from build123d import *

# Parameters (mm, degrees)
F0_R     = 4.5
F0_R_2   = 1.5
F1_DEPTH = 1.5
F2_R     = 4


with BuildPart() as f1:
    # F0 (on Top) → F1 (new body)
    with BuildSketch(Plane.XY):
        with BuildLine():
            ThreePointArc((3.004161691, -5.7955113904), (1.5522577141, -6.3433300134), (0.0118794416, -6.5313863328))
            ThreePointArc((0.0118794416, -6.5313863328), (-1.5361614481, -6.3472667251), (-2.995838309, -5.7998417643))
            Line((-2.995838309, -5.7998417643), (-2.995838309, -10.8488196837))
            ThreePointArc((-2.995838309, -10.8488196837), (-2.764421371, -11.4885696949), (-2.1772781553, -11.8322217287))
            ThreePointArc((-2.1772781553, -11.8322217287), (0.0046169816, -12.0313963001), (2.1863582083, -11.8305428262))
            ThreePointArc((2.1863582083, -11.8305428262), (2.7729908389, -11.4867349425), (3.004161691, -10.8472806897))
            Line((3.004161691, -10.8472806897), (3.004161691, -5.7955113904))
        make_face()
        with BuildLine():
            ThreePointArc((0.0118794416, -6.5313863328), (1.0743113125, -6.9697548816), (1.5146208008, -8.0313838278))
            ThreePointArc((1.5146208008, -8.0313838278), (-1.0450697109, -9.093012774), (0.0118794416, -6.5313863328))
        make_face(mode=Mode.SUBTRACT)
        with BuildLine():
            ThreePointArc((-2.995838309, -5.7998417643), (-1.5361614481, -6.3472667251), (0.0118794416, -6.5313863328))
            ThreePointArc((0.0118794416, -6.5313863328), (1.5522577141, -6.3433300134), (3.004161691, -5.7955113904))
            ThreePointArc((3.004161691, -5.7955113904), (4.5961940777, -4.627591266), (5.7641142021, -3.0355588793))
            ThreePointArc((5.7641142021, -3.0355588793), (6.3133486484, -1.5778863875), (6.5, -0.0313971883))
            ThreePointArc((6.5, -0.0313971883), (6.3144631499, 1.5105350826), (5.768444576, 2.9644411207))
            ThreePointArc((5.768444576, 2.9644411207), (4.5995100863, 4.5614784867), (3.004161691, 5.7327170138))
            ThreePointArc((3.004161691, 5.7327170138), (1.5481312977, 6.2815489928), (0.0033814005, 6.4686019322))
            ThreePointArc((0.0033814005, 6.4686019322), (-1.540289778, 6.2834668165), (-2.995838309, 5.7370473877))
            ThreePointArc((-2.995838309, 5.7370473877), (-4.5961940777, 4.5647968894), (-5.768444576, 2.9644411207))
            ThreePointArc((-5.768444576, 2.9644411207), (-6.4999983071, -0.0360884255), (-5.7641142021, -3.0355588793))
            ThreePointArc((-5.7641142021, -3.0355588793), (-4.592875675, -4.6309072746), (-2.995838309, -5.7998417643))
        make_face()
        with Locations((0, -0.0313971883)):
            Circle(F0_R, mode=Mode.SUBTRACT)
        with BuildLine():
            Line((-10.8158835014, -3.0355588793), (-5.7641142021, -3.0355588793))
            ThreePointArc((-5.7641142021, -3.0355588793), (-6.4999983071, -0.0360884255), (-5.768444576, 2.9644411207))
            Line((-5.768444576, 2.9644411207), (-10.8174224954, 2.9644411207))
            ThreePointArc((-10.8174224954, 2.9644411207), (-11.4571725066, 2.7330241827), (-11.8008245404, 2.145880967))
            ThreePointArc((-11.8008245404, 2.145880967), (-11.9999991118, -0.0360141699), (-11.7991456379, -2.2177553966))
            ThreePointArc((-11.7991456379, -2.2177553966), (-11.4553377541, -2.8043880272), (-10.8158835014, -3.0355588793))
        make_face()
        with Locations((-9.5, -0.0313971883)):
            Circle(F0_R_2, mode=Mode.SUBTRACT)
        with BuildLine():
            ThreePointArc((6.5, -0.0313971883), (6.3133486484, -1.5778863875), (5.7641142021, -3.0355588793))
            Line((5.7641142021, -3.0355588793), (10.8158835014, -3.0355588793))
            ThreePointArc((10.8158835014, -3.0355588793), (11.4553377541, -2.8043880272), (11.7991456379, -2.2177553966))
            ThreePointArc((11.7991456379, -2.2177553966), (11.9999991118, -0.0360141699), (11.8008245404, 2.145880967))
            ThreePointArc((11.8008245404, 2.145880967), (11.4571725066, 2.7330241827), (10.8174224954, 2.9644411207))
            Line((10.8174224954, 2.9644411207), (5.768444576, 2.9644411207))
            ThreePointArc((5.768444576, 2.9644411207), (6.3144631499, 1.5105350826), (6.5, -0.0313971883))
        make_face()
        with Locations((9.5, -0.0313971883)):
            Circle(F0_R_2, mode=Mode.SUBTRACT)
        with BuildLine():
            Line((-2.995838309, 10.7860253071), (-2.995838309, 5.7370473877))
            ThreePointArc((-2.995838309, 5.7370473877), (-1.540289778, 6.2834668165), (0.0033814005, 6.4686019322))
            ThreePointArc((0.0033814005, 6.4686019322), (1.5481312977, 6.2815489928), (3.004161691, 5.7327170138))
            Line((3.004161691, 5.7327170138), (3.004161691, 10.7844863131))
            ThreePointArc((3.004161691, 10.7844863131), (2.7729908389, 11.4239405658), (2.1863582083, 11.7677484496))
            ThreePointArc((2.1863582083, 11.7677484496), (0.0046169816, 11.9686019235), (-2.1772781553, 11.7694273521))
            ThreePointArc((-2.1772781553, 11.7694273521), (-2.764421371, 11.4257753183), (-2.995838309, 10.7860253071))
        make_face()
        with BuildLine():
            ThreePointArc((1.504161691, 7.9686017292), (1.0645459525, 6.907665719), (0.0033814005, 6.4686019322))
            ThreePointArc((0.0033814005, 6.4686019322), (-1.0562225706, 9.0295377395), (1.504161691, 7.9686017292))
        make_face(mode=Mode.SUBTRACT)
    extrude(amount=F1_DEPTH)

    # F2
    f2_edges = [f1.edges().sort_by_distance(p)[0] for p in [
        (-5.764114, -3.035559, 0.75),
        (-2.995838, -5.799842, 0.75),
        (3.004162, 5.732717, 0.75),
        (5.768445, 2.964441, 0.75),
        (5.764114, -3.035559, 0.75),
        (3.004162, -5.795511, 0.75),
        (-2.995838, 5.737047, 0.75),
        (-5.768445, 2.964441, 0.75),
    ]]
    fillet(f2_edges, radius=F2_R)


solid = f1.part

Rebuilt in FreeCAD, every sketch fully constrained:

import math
import FreeCAD as App
import Part
import Sketcher


def edges_at(feature, points):
    """Names of the edges that pass closest to the given points."""
    edges = feature.Shape.Edges
    near = lambda p: min(range(len(edges)), key=lambda i: edges[i].distToShape(Part.Vertex(*p))[0])
    return sorted({f"Edge{near(p) + 1}" for p in points})

doc = App.newDocument("Part")
params = doc.addObject("Spreadsheet::Sheet", "Params")
for row, (alias, value) in enumerate([
    ("sketch1_diameter", "3 mm"),
    ("sketch1_diameter2", "9 mm"),
    ("sketch1_radius", "1 mm"),
    ("sketch1_radius2", "12 mm"),
    ("sketch1_radius3", "6.5 mm"),
    ("pad1_length", "1.5 mm"),
    ("fillet_radius", "4 mm"),
], start=1):
    params.set(f"A{row}", alias)
    params.set(f"B{row}", "=" + value)
    params.setAlias(f"B{row}", alias)

body = doc.addObject("PartDesign::Body", "Body")

sketch1 = doc.addObject("Sketcher::SketchObject", "Sketch")
body.addObject(sketch1)
sketch1.AttachmentSupport = (doc.XY_Plane, [""])
sketch1.MapMode = "FlatFace"
sketch1.addGeometry(Part.ArcOfCircle(Part.Circle(App.Vector(2, -10.8, 0), App.Vector(0, 0, 1), 1), math.radians(-80), math.radians(0)), False)
sketch1.addGeometry(Part.LineSegment(App.Vector(3, -10.8, 0), App.Vector(3, -5.8, 0)), False)
sketch1.addGeometry(Part.ArcOfCircle(Part.Circle(App.Vector(0, 0, 0), App.Vector(0, 0, 1), 6.5), math.radians(-62), math.radians(-28)), False)
sketch1.addGeometry(Part.LineSegment(App.Vector(5.8, -3, 0), App.Vector(10.8, -3, 0)), False)
sketch1.addGeometry(Part.ArcOfCircle(Part.Circle(App.Vector(10.8, -2, 0), App.Vector(0, 0, 1), 1), math.radians(-90), math.radians(-10)), False)
sketch1.addGeometry(Part.ArcOfCircle(Part.Circle(App.Vector(0, 0, 0), App.Vector(0, 0, 1), 12), math.radians(-10), math.radians(10)), False)
sketch1.addGeometry(Part.ArcOfCircle(Part.Circle(App.Vector(10.8, 2, 0), App.Vector(0, 0, 1), 1), math.radians(10), math.radians(90)), False)
sketch1.addGeometry(Part.LineSegment(App.Vector(10.8, 3, 0), App.Vector(5.8, 3, 0)), False)
sketch1.addGeometry(Part.ArcOfCircle(Part.Circle(App.Vector(0, 0, 0), App.Vector(0, 0, 1), 6.5), math.radians(27), math.radians(62)), False)
sketch1.addGeometry(Part.LineSegment(App.Vector(3, 5.7, 0), App.Vector(3, 10.8, 0)), False)
sketch1.addGeometry(Part.ArcOfCircle(Part.Circle(App.Vector(2, 10.8, 0), App.Vector(0, 0, 1), 1), math.radians(0), math.radians(80)), False)
sketch1.addGeometry(Part.ArcOfCircle(Part.Circle(App.Vector(0, 0, 0), App.Vector(0, 0, 1), 12), math.radians(80), math.radians(100)), False)
sketch1.addGeometry(Part.ArcOfCircle(Part.Circle(App.Vector(-2, 10.8, 0), App.Vector(0, 0, 1), 1), math.radians(100), math.radians(180)), False)
sketch1.addGeometry(Part.LineSegment(App.Vector(-3, 10.8, 0), App.Vector(-3, 5.7, 0)), False)
sketch1.addGeometry(Part.ArcOfCircle(Part.Circle(App.Vector(0, 0, 0), App.Vector(0, 0, 1), 6.5), math.radians(117), math.radians(153)), False)
sketch1.addGeometry(Part.LineSegment(App.Vector(-5.8, 3, 0), App.Vector(-10.8, 3, 0)), False)
sketch1.addGeometry(Part.ArcOfCircle(Part.Circle(App.Vector(-10.8, 2, 0), App.Vector(0, 0, 1), 1), math.radians(90), math.radians(170)), False)
sketch1.addGeometry(Part.ArcOfCircle(Part.Circle(App.Vector(0, 0, 0), App.Vector(0, 0, 1), 12), math.radians(170), math.radians(190)), False)
sketch1.addGeometry(Part.ArcOfCircle(Part.Circle(App.Vector(-10.8, -2, 0), App.Vector(0, 0, 1), 1), math.radians(-170), math.radians(-90)), False)
sketch1.addGeometry(Part.LineSegment(App.Vector(-10.8, -3, 0), App.Vector(-5.8, -3, 0)), False)
sketch1.addGeometry(Part.ArcOfCircle(Part.Circle(App.Vector(0, 0, 0), App.Vector(0, 0, 1), 6.5), math.radians(-152), math.radians(-117)), False)
sketch1.addGeometry(Part.LineSegment(App.Vector(-3, -5.8, 0), App.Vector(-3, -10.8, 0)), False)
sketch1.addGeometry(Part.ArcOfCircle(Part.Circle(App.Vector(-2, -10.8, 0), App.Vector(0, 0, 1), 1), math.radians(180), math.radians(260)), False)
sketch1.addGeometry(Part.ArcOfCircle(Part.Circle(App.Vector(0, 0, 0), App.Vector(0, 0, 1), 12), math.radians(-100), math.radians(-80)), False)
sketch1.addGeometry(Part.Circle(App.Vector(-9.5, 0, 0), App.Vector(0, 0, 1), 1.5), False)
sketch1.addGeometry(Part.ArcOfCircle(Part.Circle(App.Vector(0, -8, 0), App.Vector(0, 0, 1), 1.5), math.radians(90), math.radians(360)), False)
sketch1.addGeometry(Part.ArcOfCircle(Part.Circle(App.Vector(0, -8, 0), App.Vector(0, 0, 1), 1.5), math.radians(0), math.radians(90)), False)
sketch1.addGeometry(Part.Circle(App.Vector(0, 0, 0), App.Vector(0, 0, 1), 4.5), False)
sketch1.addGeometry(Part.Circle(App.Vector(9.5, 0, 0), App.Vector(0, 0, 1), 1.5), False)
sketch1.addGeometry(Part.ArcOfCircle(Part.Circle(App.Vector(0, 8, 0), App.Vector(0, 0, 1), 1.5), math.radians(0), math.radians(270)), False)
sketch1.addGeometry(Part.ArcOfCircle(Part.Circle(App.Vector(0, 8, 0), App.Vector(0, 0, 1), 1.5), math.radians(-90), math.radians(0)), False)
sketch1.addConstraint(Sketcher.Constraint("Tangent", 0, 2, 1, 1))
sketch1.addConstraint(Sketcher.Constraint("Coincident", 1, 2, 2, 1))
sketch1.addConstraint(Sketcher.Constraint("Coincident", 2, 2, 3, 1))
sketch1.addConstraint(Sketcher.Constraint("Tangent", 3, 2, 4, 1))
sketch1.addConstraint(Sketcher.Constraint("Tangent", 4, 2, 5, 1))
sketch1.addConstraint(Sketcher.Constraint("Tangent", 5, 2, 6, 1))
sketch1.addConstraint(Sketcher.Constraint("Tangent", 6, 2, 7, 1))
sketch1.addConstraint(Sketcher.Constraint("Coincident", 7, 2, 8, 1))
sketch1.addConstraint(Sketcher.Constraint("Coincident", 8, 2, 9, 1))
sketch1.addConstraint(Sketcher.Constraint("Tangent", 9, 2, 10, 1))
sketch1.addConstraint(Sketcher.Constraint("Tangent", 10, 2, 11, 1))
sketch1.addConstraint(Sketcher.Constraint("Tangent", 11, 2, 12, 1))
sketch1.addConstraint(Sketcher.Constraint("Tangent", 12, 2, 13, 1))
sketch1.addConstraint(Sketcher.Constraint("Coincident", 13, 2, 14, 1))
sketch1.addConstraint(Sketcher.Constraint("Coincident", 14, 2, 15, 1))
sketch1.addConstraint(Sketcher.Constraint("Tangent", 15, 2, 16, 1))
sketch1.addConstraint(Sketcher.Constraint("Tangent", 16, 2, 17, 1))
sketch1.addConstraint(Sketcher.Constraint("Tangent", 17, 2, 18, 1))
sketch1.addConstraint(Sketcher.Constraint("Tangent", 18, 2, 19, 1))
sketch1.addConstraint(Sketcher.Constraint("Coincident", 19, 2, 20, 1))
sketch1.addConstraint(Sketcher.Constraint("Coincident", 20, 2, 21, 1))
sketch1.addConstraint(Sketcher.Constraint("Tangent", 21, 2, 22, 1))
sketch1.addConstraint(Sketcher.Constraint("Tangent", 22, 2, 23, 1))
sketch1.addConstraint(Sketcher.Constraint("Tangent", 23, 2, 0, 1))
sketch1.addConstraint(Sketcher.Constraint("Tangent", 25, 1, 26, 2))
sketch1.addConstraint(Sketcher.Constraint("Coincident", 26, 1, 25, 2))
sketch1.addConstraint(Sketcher.Constraint("Tangent", 29, 1, 30, 2))
sketch1.addConstraint(Sketcher.Constraint("Coincident", 30, 1, 29, 2))
sketch1.addConstraint(Sketcher.Constraint("Vertical", 1))
sketch1.addConstraint(Sketcher.Constraint("Horizontal", 3))
sketch1.addConstraint(Sketcher.Constraint("Horizontal", 7))
sketch1.addConstraint(Sketcher.Constraint("Vertical", 9))
sketch1.addConstraint(Sketcher.Constraint("Vertical", 13))
sketch1.addConstraint(Sketcher.Constraint("Horizontal", 15))
sketch1.addConstraint(Sketcher.Constraint("Horizontal", 19))
sketch1.addConstraint(Sketcher.Constraint("Vertical", 21))
sketch1.addConstraint(Sketcher.Constraint("Coincident", 5, 3, 2, 3))
sketch1.addConstraint(Sketcher.Constraint("Coincident", 8, 3, 2, 3))
sketch1.addConstraint(Sketcher.Constraint("Coincident", 11, 3, 2, 3))
sketch1.addConstraint(Sketcher.Constraint("Coincident", 14, 3, 2, 3))
sketch1.addConstraint(Sketcher.Constraint("Coincident", 17, 3, 2, 3))
sketch1.addConstraint(Sketcher.Constraint("Coincident", 20, 3, 2, 3))
sketch1.addConstraint(Sketcher.Constraint("Coincident", 23, 3, 2, 3))
sketch1.addConstraint(Sketcher.Constraint("Coincident", 27, 3, 2, 3))
sketch1.addConstraint(Sketcher.Constraint("Equal", 0, 4))
sketch1.addConstraint(Sketcher.Constraint("Equal", 4, 6))
sketch1.addConstraint(Sketcher.Constraint("Equal", 2, 8))
sketch1.addConstraint(Sketcher.Constraint("Equal", 6, 10))
sketch1.addConstraint(Sketcher.Constraint("Equal", 5, 11))
sketch1.addConstraint(Sketcher.Constraint("Equal", 10, 12))
sketch1.addConstraint(Sketcher.Constraint("Equal", 8, 14))
sketch1.addConstraint(Sketcher.Constraint("Equal", 12, 16))
sketch1.addConstraint(Sketcher.Constraint("Equal", 11, 17))
sketch1.addConstraint(Sketcher.Constraint("Equal", 16, 18))
sketch1.addConstraint(Sketcher.Constraint("Equal", 14, 20))
sketch1.addConstraint(Sketcher.Constraint("Equal", 18, 22))
sketch1.addConstraint(Sketcher.Constraint("Equal", 17, 23))
sketch1.addConstraint(Sketcher.Constraint("Equal", 24, 25))
sketch1.addConstraint(Sketcher.Constraint("Equal", 26, 28))
sketch1.addConstraint(Sketcher.Constraint("Equal", 28, 29))
sketch1.addConstraint(Sketcher.Constraint("Symmetric", 6, 3, 16, 3, -2))
sketch1.addConstraint(Sketcher.Constraint("Symmetric", 24, 3, 28, 3, -2))
sketch1.addConstraint(Sketcher.Constraint("Horizontal", 4, 3, 18, 3))
sketch1.addConstraint(Sketcher.Constraint("Horizontal", 23, 3, 24, 3))
sketch1.addConstraint(Sketcher.Constraint("Horizontal", 25, 3, 26, 1))
sketch1.addConstraint(Sketcher.Constraint("Horizontal", 30, 3, 29, 1))
sketch1.addConstraint(Sketcher.Constraint("Vertical", 0, 3, 10, 3))
sketch1.addConstraint(Sketcher.Constraint("Vertical", 12, 3, 22, 3))
sketch1.addConstraint(Sketcher.Constraint("Equal", 19, 1))
sketch1.addConstraint(Sketcher.Constraint("Equal", 15, 13))
sketch1.addConstraint(Sketcher.Constraint("Diameter", 24, 3.0))
sketch1.addConstraint(Sketcher.Constraint("Diameter", 27, 9.0))
sketch1.addConstraint(Sketcher.Constraint("Radius", 0, 1.0))
sketch1.addConstraint(Sketcher.Constraint("Radius", 5, 12.0))
sketch1.addConstraint(Sketcher.Constraint("Radius", 2, 6.5))
sketch1.addConstraint(Sketcher.Constraint("DistanceY", 4, 3, 6, 3, 4.0))
sketch1.addConstraint(Sketcher.Constraint("DistanceX", 29, 3, 10, 3, 2.0))
sketch1.addConstraint(Sketcher.Constraint("DistanceY", 11, 3, 29, 3, 7.999999))
sketch1.addConstraint(Sketcher.Constraint("DistanceX", 24, 3, -1, 1, 9.5))
sketch1.addConstraint(Sketcher.Constraint("DistanceX", 3, 1, 3, 2, 5.051769))
sketch1.addConstraint(Sketcher.Constraint("DistanceY", -1, 1, 29, 3, 7.968602))
sketch1.addConstraint(Sketcher.Constraint("DistanceX", 22, 2, 25, 3, 2.191899))
sketch1.addConstraint(Sketcher.Constraint("DistanceX", -1, 1, 25, 1, 0.011879))
sketch1.addConstraint(Sketcher.Constraint("DistanceX", -1, 1, 30, 1, 0.003381))
sketch1.addConstraint(Sketcher.Constraint("DistanceY", 23, 2, 25, 3, 3.799159))
sketch1.setExpression("Constraints[70]", "Params.sketch1_diameter")
sketch1.setExpression("Constraints[71]", "Params.sketch1_diameter2")
sketch1.setExpression("Constraints[72]", "Params.sketch1_radius")
sketch1.setExpression("Constraints[73]", "Params.sketch1_radius2")
sketch1.setExpression("Constraints[74]", "Params.sketch1_radius3")
pad1 = doc.addObject("PartDesign::Pad", "Pad")
body.addObject(pad1)
pad1.Profile = sketch1
pad1.setExpression("Length", "Params.pad1_length")
doc.recompute()

fillet = doc.addObject("PartDesign::Fillet", "Fillet")
body.addObject(fillet)
fillet.Base = (pad1, edges_at(pad1, [
    (-5.764, -3.036, 0.75),
    (-2.996, -5.8, 0.75),
    (3.004, 5.733, 0.75),
    (5.768, 2.964, 0.75),
    (5.764, -3.036, 0.75),
    (3.004, -5.796, 0.75),
    (-2.996, 5.737, 0.75),
    (-5.768, 2.964, 0.75),
]))
fillet.setExpression("Radius", "Params.fillet_radius")

doc.recompute()
